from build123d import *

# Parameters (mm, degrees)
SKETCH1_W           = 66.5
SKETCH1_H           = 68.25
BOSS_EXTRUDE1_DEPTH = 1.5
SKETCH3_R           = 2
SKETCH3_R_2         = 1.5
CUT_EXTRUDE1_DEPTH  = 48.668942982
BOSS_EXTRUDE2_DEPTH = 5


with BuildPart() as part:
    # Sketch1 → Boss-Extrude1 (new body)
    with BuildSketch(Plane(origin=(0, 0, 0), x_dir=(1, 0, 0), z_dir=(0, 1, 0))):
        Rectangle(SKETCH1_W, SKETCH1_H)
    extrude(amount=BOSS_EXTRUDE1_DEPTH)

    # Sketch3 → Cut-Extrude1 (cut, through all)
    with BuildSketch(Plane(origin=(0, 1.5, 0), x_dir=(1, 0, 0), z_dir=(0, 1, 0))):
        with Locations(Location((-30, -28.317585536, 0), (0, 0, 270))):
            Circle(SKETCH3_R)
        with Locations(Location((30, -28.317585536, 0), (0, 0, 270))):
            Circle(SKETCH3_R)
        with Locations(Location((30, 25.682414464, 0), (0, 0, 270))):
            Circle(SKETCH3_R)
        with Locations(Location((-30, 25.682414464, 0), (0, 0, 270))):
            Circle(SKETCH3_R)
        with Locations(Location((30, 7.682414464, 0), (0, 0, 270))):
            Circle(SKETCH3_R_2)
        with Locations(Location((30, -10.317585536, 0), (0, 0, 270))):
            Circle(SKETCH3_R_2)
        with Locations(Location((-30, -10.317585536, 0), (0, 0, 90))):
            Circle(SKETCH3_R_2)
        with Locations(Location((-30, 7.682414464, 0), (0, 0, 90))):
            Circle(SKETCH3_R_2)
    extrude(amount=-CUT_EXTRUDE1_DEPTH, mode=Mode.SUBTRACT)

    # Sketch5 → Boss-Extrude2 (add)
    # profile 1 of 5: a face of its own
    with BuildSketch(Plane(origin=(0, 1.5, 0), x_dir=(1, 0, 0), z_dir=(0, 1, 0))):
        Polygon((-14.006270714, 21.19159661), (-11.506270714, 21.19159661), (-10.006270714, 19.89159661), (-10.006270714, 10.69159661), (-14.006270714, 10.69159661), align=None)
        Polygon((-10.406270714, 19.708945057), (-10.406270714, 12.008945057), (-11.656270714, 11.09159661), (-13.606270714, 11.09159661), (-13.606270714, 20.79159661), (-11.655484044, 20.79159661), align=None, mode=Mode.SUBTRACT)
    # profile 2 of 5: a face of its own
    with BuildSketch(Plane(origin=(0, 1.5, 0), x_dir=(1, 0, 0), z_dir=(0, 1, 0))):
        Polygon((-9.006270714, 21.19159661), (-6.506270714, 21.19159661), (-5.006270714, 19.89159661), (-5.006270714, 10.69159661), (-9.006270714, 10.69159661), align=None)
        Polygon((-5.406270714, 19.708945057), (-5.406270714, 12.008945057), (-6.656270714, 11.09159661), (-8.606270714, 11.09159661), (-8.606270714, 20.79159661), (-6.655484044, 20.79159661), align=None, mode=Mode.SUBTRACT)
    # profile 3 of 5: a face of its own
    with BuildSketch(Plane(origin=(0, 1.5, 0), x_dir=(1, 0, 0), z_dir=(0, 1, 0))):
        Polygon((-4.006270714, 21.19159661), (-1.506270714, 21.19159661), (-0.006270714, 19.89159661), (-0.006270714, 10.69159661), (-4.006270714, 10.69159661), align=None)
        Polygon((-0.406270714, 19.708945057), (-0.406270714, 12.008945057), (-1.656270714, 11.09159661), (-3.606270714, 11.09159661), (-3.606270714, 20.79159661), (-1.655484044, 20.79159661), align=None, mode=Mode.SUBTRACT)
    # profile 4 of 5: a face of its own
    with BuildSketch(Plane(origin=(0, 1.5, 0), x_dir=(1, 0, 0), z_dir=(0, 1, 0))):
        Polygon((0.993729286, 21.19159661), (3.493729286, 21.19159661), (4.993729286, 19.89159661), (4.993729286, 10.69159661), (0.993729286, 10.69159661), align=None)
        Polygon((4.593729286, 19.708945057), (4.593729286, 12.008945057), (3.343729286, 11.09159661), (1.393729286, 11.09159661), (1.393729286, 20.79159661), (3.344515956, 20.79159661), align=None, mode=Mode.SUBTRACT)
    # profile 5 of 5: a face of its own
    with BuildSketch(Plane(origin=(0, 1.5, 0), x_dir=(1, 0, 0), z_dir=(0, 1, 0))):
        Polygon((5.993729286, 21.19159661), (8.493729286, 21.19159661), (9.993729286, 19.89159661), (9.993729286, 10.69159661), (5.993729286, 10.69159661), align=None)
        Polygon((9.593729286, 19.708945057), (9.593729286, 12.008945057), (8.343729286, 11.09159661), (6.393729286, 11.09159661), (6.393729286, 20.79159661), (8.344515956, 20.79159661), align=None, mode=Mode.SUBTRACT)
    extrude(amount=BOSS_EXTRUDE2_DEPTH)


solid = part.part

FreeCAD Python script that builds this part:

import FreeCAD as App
import Part
import Sketcher

V = App.Vector


def add_polygon(sketch, points):
    """Adds a closed chain of lines whose ends are joined by coincident constraints."""
    first, n = sketch.GeometryCount, len(points)
    for a, b in zip(points, points[1:] + points[:1]):
        sketch.addGeometry(Part.LineSegment(App.Vector(*a, 0), App.Vector(*b, 0)), False)
    for i in range(n):
        sketch.addConstraint(Sketcher.Constraint("Coincident", first + i, 2, first + (i + 1) % n, 1))

doc = App.newDocument("Part")
body = doc.addObject("PartDesign::Body", "Body")

# Sketch on XZ plane
sketch1 = body.newObject("Sketcher::SketchObject", "Sketch")
sketch1.AttachmentSupport = (doc.getObject("XZ_Plane"), [""])
sketch1.MapMode = "FlatFace"
add_polygon(sketch1, [(-33, -34), (-33, 34), (33, 34), (33, -34)])  # lines 0-3
sketch1.addConstraint(Sketcher.Constraint("Vertical", 0))
sketch1.addConstraint(Sketcher.Constraint("Horizontal", 1))
sketch1.addConstraint(Sketcher.Constraint("Vertical", 2))
sketch1.addConstraint(Sketcher.Constraint("Horizontal", 3))
sketch1.addConstraint(Sketcher.Constraint("Symmetric", 0, 2, 2, 2, -1, 1))
sketch1.addConstraint(Sketcher.Constraint("DistanceX", 1, 1, 1, 2, 66.5))
sketch1.addConstraint(Sketcher.Constraint("DistanceY", 0, 1, 0, 2, 68.25))
pad1 = body.newObject("PartDesign::Pad", "Pad")
pad1.Profile = sketch1
pad1.Length = 1.5
pad1.Reversed = True

# Sketch on XZ plane
sketch2 = body.newObject("Sketcher::SketchObject", "Sketch001")
sketch2.AttachmentSupport = (doc.getObject("XZ_Plane"), [""])
sketch2.MapMode = "FlatFace"
sketch2.AttachmentOffset = App.Placement(V(0, 0, -1.5), App.Rotation())
sketch2.addGeometry(Part.Circle(V(-30, 28.3, 0), V(0, 0, 1), 2), False)
sketch2.addGeometry(Part.Circle(V(30, 28.3, 0), V(0, 0, 1), 2), False)
sketch2.addGeometry(Part.Circle(V(30, -25.7, 0), V(0, 0, 1), 2), False)
sketch2.addGeometry(Part.Circle(V(-30, -25.7, 0), V(0, 0, 1), 2), False)
sketch2.addGeometry(Part.Circle(V(30, -7.7, 0), V(0, 0, 1), 1.5), False)
sketch2.addGeometry(Part.Circle(V(30, 10.3, 0), V(0, 0, 1), 1.5), False)
sketch2.addGeometry(Part.Circle(V(-30, 10.3, 0), V(0, 0, 1), 1.5), False)
sketch2.addGeometry(Part.Circle(V(-30, -7.7, 0), V(0, 0, 1), 1.5), False)
sketch2.addConstraint(Sketcher.Constraint("Equal", 0, 1))
sketch2.addConstraint(Sketcher.Constraint("Equal", 1, 2))
sketch2.addConstraint(Sketcher.Constraint("Equal", 2, 3))
sketch2.addConstraint(Sketcher.Constraint("Equal", 4, 5))
sketch2.addConstraint(Sketcher.Constraint("Equal", 5, 6))
sketch2.addConstraint(Sketcher.Constraint("Equal", 6, 7))
sketch2.addConstraint(Sketcher.Constraint("Symmetric", 0, 3, 1, 3, -2))
sketch2.addConstraint(Sketcher.Constraint("Symmetric", 2, 3, 3, 3, -2))
sketch2.addConstraint(Sketcher.Constraint("Symmetric", 5, 3, 6, 3, -2))
sketch2.addConstraint(Sketcher.Constraint("Symmetric", 4, 3, 7, 3, -2))
sketch2.addConstraint(Sketcher.Constraint("Vertical", 1, 3, 2, 3))
sketch2.addConstraint(Sketcher.Constraint("Vertical", 2, 3, 4, 3))
sketch2.addConstraint(Sketcher.Constraint("Vertical", 4, 3, 5, 3))
sketch2.addConstraint(Sketcher.Constraint("Diameter", 0, 4.0))
sketch2.addConstraint(Sketcher.Constraint("Diameter", 4, 3.0))
sketch2.addConstraint(Sketcher.Constraint("DistanceX", 0, 3, -1, 1, 30.0))
sketch2.addConstraint(Sketcher.Constraint("DistanceY", 2, 3, 1, 3, 54.0))
sketch2.addConstraint(Sketcher.Constraint("DistanceY", 2, 3, 4, 3, 18.0))
sketch2.addConstraint(Sketcher.Constraint("DistanceY", 5, 3, 1, 3, 18.0))
sketch2.addConstraint(Sketcher.Constraint("DistanceY", -1, 1, 0, 3, 28.317586))
pocket1 = body.newObject("PartDesign::Pocket", "Pocket")
pocket1.Profile = sketch2
pocket1.Type = "ThroughAll"
pocket1.Reversed = True

# Sketch on XZ plane
sketch3 = body.newObject("Sketcher::SketchObject", "Sketch002")
sketch3.AttachmentSupport = (doc.getObject("XZ_Plane"), [""])
sketch3.MapMode = "FlatFace"
sketch3.AttachmentOffset = App.Placement(V(0, 0, -1.5), App.Rotation())
add_polygon(sketch3, [(-11.5, -21.2), (-14, -21.2), (-14, -10.7), (-10, -10.7), (-10, -19.9)])  # lines 0-4
add_polygon(sketch3, [(-10.4, -19.7), (-10.4, -12), (-11.7, -11.1), (-13.6, -11.1), (-13.6, -20.8), (-11.7, -20.8)])  # lines 5-10
add_polygon(sketch3, [(-6.5, -21.2), (-9, -21.2), (-9, -10.7), (-5, -10.7), (-5, -19.9)])  # lines 11-15
add_polygon(sketch3, [(-5.4, -19.7), (-5.4, -12), (-6.7, -11.1), (-8.6, -11.1), (-8.6, -20.8), (-6.7, -20.8)])  # lines 16-21
add_polygon(sketch3, [(-1.5, -21.2), (-4, -21.2), (-4, -10.7), (0, -10.7), (0, -19.9)])  # lines 22-26
add_polygon(sketch3, [(-0.4, -19.7), (-0.4, -12), (-1.7, -11.1), (-3.6, -11.1), (-3.6, -20.8), (-1.7, -20.8)])  # lines 27-32
add_polygon(sketch3, [(3.5, -21.2), (1, -21.2), (1, -10.7), (5, -10.7), (5, -19.9)])  # lines 33-37
add_polygon(sketch3, [(4.6, -19.7), (4.6, -12), (3.3, -11.1), (1.4, -11.1), (1.4, -20.8), (3.3, -20.8)])  # lines 38-43
add_polygon(sketch3, [(8.5, -21.2), (6, -21.2), (6, -10.7), (10, -10.7), (10, -19.9)])  # lines 44-48
add_polygon(sketch3, [(9.6, -19.7), (9.6, -12), (8.3, -11.1), (6.4, -11.1), (6.4, -20.8), (8.3, -20.8)])  # lines 49-54
sketch3.addConstraint(Sketcher.Constraint("Horizontal", 0))
sketch3.addConstraint(Sketcher.Constraint("Vertical", 1))
sketch3.addConstraint(Sketcher.Constraint("Horizontal", 2))
sketch3.addConstraint(Sketcher.Constraint("Vertical", 3))
sketch3.addConstraint(Sketcher.Constraint("Vertical", 5))
sketch3.addConstraint(Sketcher.Constraint("Horizontal", 7))
sketch3.addConstraint(Sketcher.Constraint("Vertical", 8))
sketch3.addConstraint(Sketcher.Constraint("Horizontal", 9))
sketch3.addConstraint(Sketcher.Constraint("Horizontal", 11))
sketch3.addConstraint(Sketcher.Constraint("Vertical", 12))
sketch3.addConstraint(Sketcher.Constraint("Horizontal", 13))
sketch3.addConstraint(Sketcher.Constraint("Vertical", 14))
sketch3.addConstraint(Sketcher.Constraint("Vertical", 16))
sketch3.addConstraint(Sketcher.Constraint("Horizontal", 18))
sketch3.addConstraint(Sketcher.Constraint("Vertical", 19))
sketch3.addConstraint(Sketcher.Constraint("Horizontal", 20))
sketch3.addConstraint(Sketcher.Constraint("Horizontal", 22))
sketch3.addConstraint(Sketcher.Constraint("Vertical", 23))
sketch3.addConstraint(Sketcher.Constraint("Horizontal", 24))
sketch3.addConstraint(Sketcher.Constraint("Vertical", 25))
sketch3.addConstraint(Sketcher.Constraint("Vertical", 27))
sketch3.addConstraint(Sketcher.Constraint("Horizontal", 29))
sketch3.addConstraint(Sketcher.Constraint("Vertical", 30))
sketch3.addConstraint(Sketcher.Constraint("Horizontal", 31))
sketch3.addConstraint(Sketcher.Constraint("Horizontal", 33))
sketch3.addConstraint(Sketcher.Constraint("Vertical", 34))
sketch3.addConstraint(Sketcher.Constraint("Horizontal", 35))
sketch3.addConstraint(Sketcher.Constraint("Vertical", 36))
sketch3.addConstraint(Sketcher.Constraint("Vertical", 38))
sketch3.addConstraint(Sketcher.Constraint("Horizontal", 40))
sketch3.addConstraint(Sketcher.Constraint("Vertical", 41))
sketch3.addConstraint(Sketcher.Constraint("Horizontal", 42))
sketch3.addConstraint(Sketcher.Constraint("Horizontal", 44))
sketch3.addConstraint(Sketcher.Constraint("Vertical", 45))
sketch3.addConstraint(Sketcher.Constraint("Horizontal", 46))
sketch3.addConstraint(Sketcher.Constraint("Vertical", 47))
sketch3.addConstraint(Sketcher.Constraint("Vertical", 49))
sketch3.addConstraint(Sketcher.Constraint("Horizontal", 51))
sketch3.addConstraint(Sketcher.Constraint("Vertical", 52))
sketch3.addConstraint(Sketcher.Constraint("Horizontal", 53))
sketch3.addConstraint(Sketcher.Constraint("Parallel", 4, 10))
sketch3.addConstraint(Sketcher.Constraint("Parallel", 10, 15))
sketch3.addConstraint(Sketcher.Constraint("Parallel", 6, 17))
sketch3.addConstraint(Sketcher.Constraint("Parallel", 15, 21))
sketch3.addConstraint(Sketcher.Constraint("Parallel", 21, 26))
sketch3.addConstraint(Sketcher.Constraint("Parallel", 17, 28))
sketch3.addConstraint(Sketcher.Constraint("Parallel", 26, 32))
sketch3.addConstraint(Sketcher.Constraint("Parallel", 32, 37))
sketch3.addConstraint(Sketcher.Constraint("Parallel", 28, 39))
sketch3.addConstraint(Sketcher.Constraint("Parallel", 37, 43))
sketch3.addConstraint(Sketcher.Constraint("Parallel", 43, 48))
sketch3.addConstraint(Sketcher.Constraint("Parallel", 39, 50))
sketch3.addConstraint(Sketcher.Constraint("Parallel", 48, 54))
sketch3.addConstraint(Sketcher.Constraint("Horizontal", 4, 2, 11, 2))
sketch3.addConstraint(Sketcher.Constraint("Horizontal", 2, 2, 12, 2))
sketch3.addConstraint(Sketcher.Constraint("Horizontal", 3, 2, 14, 2))
sketch3.addConstraint(Sketcher.Constraint("Horizontal", 5, 2, 16, 2))
sketch3.addConstraint(Sketcher.Constraint("Horizontal", 7, 2, 17, 2))
sketch3.addConstraint(Sketcher.Constraint("Horizontal", 9, 2, 19, 2))
sketch3.addConstraint(Sketcher.Constraint("Horizontal", 10, 2, 21, 2))
sketch3.addConstraint(Sketcher.Constraint("Horizontal", 15, 2, 22, 2))
sketch3.addConstraint(Sketcher.Constraint("Horizontal", 13, 2, 23, 2))
sketch3.addConstraint(Sketcher.Constraint("Horizontal", 14, 2, 25, 2))
sketch3.addConstraint(Sketcher.Constraint("Horizontal", 16, 2, 27, 2))
sketch3.addConstraint(Sketcher.Constraint("Horizontal", 18, 2, 28, 2))
sketch3.addConstraint(Sketcher.Constraint("Horizontal", 20, 2, 30, 2))
sketch3.addConstraint(Sketcher.Constraint("Horizontal", 21, 2, 32, 2))
sketch3.addConstraint(Sketcher.Constraint("Horizontal", 26, 2, 33, 2))
sketch3.addConstraint(Sketcher.Constraint("Horizontal", 24, 2, 34, 2))
sketch3.addConstraint(Sketcher.Constraint("Horizontal", 25, 2, 36, 2))
sketch3.addConstraint(Sketcher.Constraint("Horizontal", 27, 2, 38, 2))
sketch3.addConstraint(Sketcher.Constraint("Horizontal", 29, 2, 39, 2))
sketch3.addConstraint(Sketcher.Constraint("Horizontal", 31, 2, 41, 2))
sketch3.addConstraint(Sketcher.Constraint("Horizontal", 32, 2, 43, 2))
sketch3.addConstraint(Sketcher.Constraint("Horizontal", 37, 2, 44, 2))
sketch3.addConstraint(Sketcher.Constraint("Horizontal", 35, 2, 45, 2))
sketch3.addConstraint(Sketcher.Constraint("Horizontal", 36, 2, 47, 2))
sketch3.addConstraint(Sketcher.Constraint("Horizontal", 38, 2, 49, 2))
sketch3.addConstraint(Sketcher.Constraint("Horizontal", 40, 2, 50, 2))
sketch3.addConstraint(Sketcher.Constraint("Horizontal", 42, 2, 52, 2))
sketch3.addConstraint(Sketcher.Constraint("Horizontal", 43, 2, 54, 2))
sketch3.addConstraint(Sketcher.Constraint("Equal", 0, 11))
sketch3.addConstraint(Sketcher.Constraint("Equal", 7, 18))
sketch3.addConstraint(Sketcher.Constraint("Equal", 11, 22))
sketch3.addConstraint(Sketcher.Constraint("Equal", 18, 29))
sketch3.addConstraint(Sketcher.Constraint("Equal", 22, 33))
sketch3.addConstraint(Sketcher.Constraint("Equal", 29, 40))
sketch3.addConstraint(Sketcher.Constraint("Equal", 33, 44))
sketch3.addConstraint(Sketcher.Constraint("Equal", 40, 51))
sketch3.addConstraint(Sketcher.Constraint("DistanceX", 2, 1, 2, 2, 4.0))
sketch3.addConstraint(Sketcher.Constraint("DistanceX", 0, 2, 0, 1, 2.5))
sketch3.addConstraint(Sketcher.Constraint("DistanceY", 1, 1, 1, 2, 10.5))
sketch3.addConstraint(Sketcher.Constraint("DistanceY", 3, 2, 3, 1, 9.2))
sketch3.addConstraint(Sketcher.Constraint("DistanceY", 5, 1, 5, 2, 7.7))
sketch3.addConstraint(Sketcher.Constraint("DistanceY", 8, 2, 8, 1, 9.7))
sketch3.addConstraint(Sketcher.Constraint("DistanceX", 3, 2, 11, 2, 1.0))
sketch3.addConstraint(Sketcher.Constraint("DistanceX", 5, 2, 16, 2, 5.0))
sketch3.addConstraint(Sketcher.Constraint("DistanceX", 14, 2, 22, 2, 1.0))
sketch3.addConstraint(Sketcher.Constraint("DistanceX", 16, 2, 27, 2, 5.0))
sketch3.addConstraint(Sketcher.Constraint("DistanceX", 25, 2, 33, 2, 1.0))
sketch3.addConstraint(Sketcher.Constraint("DistanceX", 27, 2, 38, 2, 5.0))
sketch3.addConstraint(Sketcher.Constraint("DistanceX", 36, 2, 44, 2, 1.0))
sketch3.addConstraint(Sketcher.Constraint("DistanceX", 38, 2, 49, 2, 5.0))
sketch3.addConstraint(Sketcher.Constraint("DistanceX", 7, 2, 7, 1, 1.95))
sketch3.addConstraint(Sketcher.Constraint("DistanceX", 5, 2, 2, 2, 0.4))
sketch3.addConstraint(Sketcher.Constraint("DistanceY", 6, 2, 2, 2, 0.4))
sketch3.addConstraint(Sketcher.Constraint("DistanceX", 1, 2, 7, 2, 0.4))
sketch3.addConstraint(Sketcher.Constraint("Distance", 10, 1.653078))
sketch3.addConstraint(Sketcher.Constraint("DistanceX", 0, 2, -1, 1, 14.006271))
sketch3.addConstraint(Sketcher.Constraint("DistanceY", 0, 2, -1, 1, 21.191597))
pad2 = body.newObject("PartDesign::Pad", "Pad001")
pad2.Profile = sketch3
pad2.Length = 5
pad2.Reversed = True

doc.recompute()
